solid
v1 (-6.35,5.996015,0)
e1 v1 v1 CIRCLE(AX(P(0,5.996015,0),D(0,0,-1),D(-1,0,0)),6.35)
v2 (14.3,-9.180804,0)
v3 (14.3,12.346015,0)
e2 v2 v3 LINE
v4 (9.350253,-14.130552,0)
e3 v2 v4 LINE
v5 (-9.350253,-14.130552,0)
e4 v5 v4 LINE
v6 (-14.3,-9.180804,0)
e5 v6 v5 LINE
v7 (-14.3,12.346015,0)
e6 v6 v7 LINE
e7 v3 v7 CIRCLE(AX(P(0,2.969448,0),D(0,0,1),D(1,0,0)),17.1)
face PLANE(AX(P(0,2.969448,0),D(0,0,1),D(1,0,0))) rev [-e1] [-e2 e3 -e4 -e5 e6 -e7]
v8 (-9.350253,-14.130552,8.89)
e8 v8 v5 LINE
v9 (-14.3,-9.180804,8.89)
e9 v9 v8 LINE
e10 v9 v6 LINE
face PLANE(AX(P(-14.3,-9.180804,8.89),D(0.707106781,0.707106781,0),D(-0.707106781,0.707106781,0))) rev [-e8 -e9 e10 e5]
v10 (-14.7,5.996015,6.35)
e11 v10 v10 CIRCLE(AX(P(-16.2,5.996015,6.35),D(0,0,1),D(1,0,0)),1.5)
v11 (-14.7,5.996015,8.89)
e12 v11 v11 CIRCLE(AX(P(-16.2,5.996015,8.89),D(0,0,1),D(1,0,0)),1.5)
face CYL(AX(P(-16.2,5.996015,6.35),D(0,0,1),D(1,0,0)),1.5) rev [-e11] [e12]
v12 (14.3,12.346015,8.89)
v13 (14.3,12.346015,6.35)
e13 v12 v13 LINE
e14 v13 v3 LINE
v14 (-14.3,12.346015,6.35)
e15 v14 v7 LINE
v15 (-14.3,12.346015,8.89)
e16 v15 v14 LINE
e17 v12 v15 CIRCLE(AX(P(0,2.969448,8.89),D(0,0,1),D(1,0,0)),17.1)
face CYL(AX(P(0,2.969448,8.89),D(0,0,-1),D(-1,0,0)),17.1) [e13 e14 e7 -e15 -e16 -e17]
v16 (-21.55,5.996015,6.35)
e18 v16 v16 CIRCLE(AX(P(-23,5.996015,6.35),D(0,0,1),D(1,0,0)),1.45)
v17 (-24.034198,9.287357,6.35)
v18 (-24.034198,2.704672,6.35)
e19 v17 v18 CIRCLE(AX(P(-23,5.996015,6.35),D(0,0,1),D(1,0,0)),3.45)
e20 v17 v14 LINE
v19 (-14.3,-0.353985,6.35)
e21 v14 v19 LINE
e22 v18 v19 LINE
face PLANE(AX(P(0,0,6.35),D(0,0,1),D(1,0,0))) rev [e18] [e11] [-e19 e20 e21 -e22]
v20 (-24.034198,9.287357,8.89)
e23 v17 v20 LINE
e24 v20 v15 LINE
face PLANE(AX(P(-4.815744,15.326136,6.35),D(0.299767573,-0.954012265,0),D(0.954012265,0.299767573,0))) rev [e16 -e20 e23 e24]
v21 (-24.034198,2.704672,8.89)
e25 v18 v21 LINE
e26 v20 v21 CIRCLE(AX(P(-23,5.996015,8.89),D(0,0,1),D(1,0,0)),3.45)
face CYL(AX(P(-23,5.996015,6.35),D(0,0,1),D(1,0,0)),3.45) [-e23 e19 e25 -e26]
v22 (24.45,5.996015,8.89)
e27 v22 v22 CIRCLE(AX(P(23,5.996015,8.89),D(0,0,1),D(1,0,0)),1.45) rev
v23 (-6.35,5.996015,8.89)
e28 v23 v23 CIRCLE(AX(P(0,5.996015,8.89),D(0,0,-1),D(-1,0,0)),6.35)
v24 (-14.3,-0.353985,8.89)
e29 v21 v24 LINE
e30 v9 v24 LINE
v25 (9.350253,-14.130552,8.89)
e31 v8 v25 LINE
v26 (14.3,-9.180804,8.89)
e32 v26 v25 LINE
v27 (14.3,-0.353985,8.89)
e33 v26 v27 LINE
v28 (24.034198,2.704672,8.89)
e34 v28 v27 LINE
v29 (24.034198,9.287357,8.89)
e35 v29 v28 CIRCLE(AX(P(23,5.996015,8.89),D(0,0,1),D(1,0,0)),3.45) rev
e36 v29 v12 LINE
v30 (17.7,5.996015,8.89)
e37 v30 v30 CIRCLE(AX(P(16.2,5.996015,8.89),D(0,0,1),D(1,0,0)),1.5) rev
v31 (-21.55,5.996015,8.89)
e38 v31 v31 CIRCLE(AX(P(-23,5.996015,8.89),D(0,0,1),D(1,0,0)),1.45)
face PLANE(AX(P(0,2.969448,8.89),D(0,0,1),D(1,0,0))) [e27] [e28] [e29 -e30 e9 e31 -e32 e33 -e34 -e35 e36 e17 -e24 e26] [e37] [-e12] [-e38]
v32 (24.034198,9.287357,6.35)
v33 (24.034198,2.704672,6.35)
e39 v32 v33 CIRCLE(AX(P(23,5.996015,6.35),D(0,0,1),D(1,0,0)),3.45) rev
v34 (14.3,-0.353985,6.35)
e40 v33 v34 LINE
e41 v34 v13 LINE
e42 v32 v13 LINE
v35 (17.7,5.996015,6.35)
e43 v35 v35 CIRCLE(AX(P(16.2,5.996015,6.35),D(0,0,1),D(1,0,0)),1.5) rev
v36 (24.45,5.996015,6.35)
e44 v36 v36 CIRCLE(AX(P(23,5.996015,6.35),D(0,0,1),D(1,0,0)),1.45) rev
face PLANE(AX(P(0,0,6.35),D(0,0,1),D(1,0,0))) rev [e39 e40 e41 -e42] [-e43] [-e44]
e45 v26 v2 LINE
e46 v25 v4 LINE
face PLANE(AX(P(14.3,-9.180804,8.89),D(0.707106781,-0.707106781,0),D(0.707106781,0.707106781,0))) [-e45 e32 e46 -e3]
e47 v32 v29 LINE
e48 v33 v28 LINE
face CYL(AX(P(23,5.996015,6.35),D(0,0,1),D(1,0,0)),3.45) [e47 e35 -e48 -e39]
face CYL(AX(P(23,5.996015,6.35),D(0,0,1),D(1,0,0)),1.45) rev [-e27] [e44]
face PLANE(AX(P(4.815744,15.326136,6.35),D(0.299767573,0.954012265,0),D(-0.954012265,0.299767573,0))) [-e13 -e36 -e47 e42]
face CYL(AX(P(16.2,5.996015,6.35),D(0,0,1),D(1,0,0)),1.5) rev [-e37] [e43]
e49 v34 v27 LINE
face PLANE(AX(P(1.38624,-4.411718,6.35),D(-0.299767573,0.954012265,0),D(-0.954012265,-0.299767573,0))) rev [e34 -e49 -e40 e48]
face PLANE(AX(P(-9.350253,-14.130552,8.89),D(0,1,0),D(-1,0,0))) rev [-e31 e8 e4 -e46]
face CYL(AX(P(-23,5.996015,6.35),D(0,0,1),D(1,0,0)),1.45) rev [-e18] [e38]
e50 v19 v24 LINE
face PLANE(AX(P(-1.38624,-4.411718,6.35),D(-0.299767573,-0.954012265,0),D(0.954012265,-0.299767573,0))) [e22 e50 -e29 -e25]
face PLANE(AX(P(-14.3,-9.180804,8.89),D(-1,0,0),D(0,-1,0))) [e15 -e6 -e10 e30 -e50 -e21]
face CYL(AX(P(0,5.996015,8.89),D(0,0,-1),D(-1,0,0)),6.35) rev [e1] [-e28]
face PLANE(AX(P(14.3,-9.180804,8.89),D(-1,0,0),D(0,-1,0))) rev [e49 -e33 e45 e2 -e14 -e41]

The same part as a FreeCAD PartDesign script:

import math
import FreeCAD as App
import Part
import Sketcher

V = App.Vector
Q = App.Units.Quantity

doc = App.newDocument("Part")
body = doc.addObject("PartDesign::Body", "Body")

# Sketch on XY plane
sketch1 = body.newObject("Sketcher::SketchObject", "Sketch")
sketch1.AttachmentSupport = (doc.getObject("XY_Plane"), [""])
sketch1.MapMode = "FlatFace"
sketch1.addGeometry(Part.LineSegment(V(-9, -14, 0), V(9, -14, 0)), False)
sketch1.addGeometry(Part.LineSegment(V(9, -14, 0), V(14, -9, 0)), False)
sketch1.addGeometry(Part.LineSegment(V(14, -9, 0), V(14, 12, 0)), False)
sketch1.addGeometry(Part.ArcOfCircle(Part.Circle(V(0, 3, 0), V(0, 0, 1), 17), math.radians(33), math.radians(147)), False)
sketch1.addGeometry(Part.LineSegment(V(-14, 12, 0), V(-14, -9, 0)), False)
sketch1.addGeometry(Part.LineSegment(V(-14, -9, 0), V(-9, -14, 0)), False)
sketch1.addConstraint(Sketcher.Constraint("Coincident", 0, 2, 1, 1))
sketch1.addConstraint(Sketcher.Constraint("Coincident", 1, 2, 2, 1))
sketch1.addConstraint(Sketcher.Constraint("Coincident", 2, 2, 3, 1))
sketch1.addConstraint(Sketcher.Constraint("Coincident", 3, 2, 4, 1))
sketch1.addConstraint(Sketcher.Constraint("Coincident", 4, 2, 5, 1))
sketch1.addConstraint(Sketcher.Constraint("Coincident", 5, 2, 0, 1))
sketch1.addConstraint(Sketcher.Constraint("Horizontal", 0))
sketch1.addConstraint(Sketcher.Constraint("Vertical", 2))
sketch1.addConstraint(Sketcher.Constraint("Vertical", 4))
sketch1.addConstraint(Sketcher.Constraint("Symmetric", 2, 2, 3, 2, -2))
sketch1.addConstraint(Sketcher.Constraint("Perpendicular", 1, 5))
sketch1.addConstraint(Sketcher.Constraint("Horizontal", 1, 2, 4, 2))
sketch1.addConstraint(Sketcher.Constraint("Equal", 1, 5))
sketch1.addConstraint(Sketcher.Constraint("Radius", 3, Q("17.1 mm")))
sketch1.addConstraint(Sketcher.Constraint("Distance", 1, Q("7 mm")))
sketch1.addConstraint(Sketcher.Constraint("DistanceX", -1, 1, 1, 2, Q("14.3 mm")))
sketch1.addConstraint(Sketcher.Constraint("DistanceY", 0, 2, 3, 3, Q("17.1 mm")))
sketch1.addConstraint(Sketcher.Constraint("DistanceY", -1, 1, 3, 3, Q("2.969448 mm")))
pad1 = body.newObject("PartDesign::Pad", "Pad")
pad1.Profile = sketch1
pad1.Length = 8.89

# Sketch on XY plane
sketch2 = body.newObject("Sketcher::SketchObject", "Sketch001")
sketch2.AttachmentSupport = (doc.getObject("XY_Plane"), [""])
sketch2.MapMode = "FlatFace"
sketch2.addGeometry(Part.Circle(V(0, 6, 0), V(0, 0, 1), 6), False)
sketch2.addConstraint(Sketcher.Constraint("PointOnObject", 0, 3, -2))
sketch2.addConstraint(Sketcher.Constraint("Diameter", 0, Q("12.7 mm")))
sketch2.addConstraint(Sketcher.Constraint("DistanceY", -1, 1, 0, 3, Q("5.996015 mm")))
pocket1 = body.newObject("PartDesign::Pocket", "Pocket")
pocket1.Profile = sketch2
pocket1.Type = "ThroughAll"
pocket1.Reversed = True

# Sketch on XY plane
sketch3 = body.newObject("Sketcher::SketchObject", "Sketch002")
sketch3.AttachmentSupport = (doc.getObject("XY_Plane"), [""])
sketch3.MapMode = "FlatFace"
sketch3.AttachmentOffset = App.Placement(V(0, 0, 8.89), App.Rotation())
sketch3.addGeometry(Part.LineSegment(V(-14.3, 12.3, 0), V(-24, 9.3, 0)), False)
sketch3.addGeometry(Part.ArcOfCircle(Part.Circle(V(-23, 6, 0), V(0, 0, 1), 3.5), math.radians(107), math.radians(253)), False)
sketch3.addGeometry(Part.LineSegment(V(-24, 2.7, 0), V(-14.3, -0.4, 0)), False)
sketch3.addGeometry(Part.LineSegment(V(-14.3, -0.4, 0), V(-14.3, 12.3, 0)), False)
sketch3.addGeometry(Part.Circle(V(-23, 6, 0), V(0, 0, 1), 1.4), False)
sketch3.addGeometry(Part.Circle(V(-16.2, 6, 0), V(0, 0, 1), 1.5), False)
sketch3.addGeometry(Part.LineSegment(V(14.3, 12.3, 0), V(14.3, -0.4, 0)), False)
sketch3.addGeometry(Part.LineSegment(V(14.3, -0.4, 0), V(24, 2.7, 0)), False)
sketch3.addGeometry(Part.ArcOfCircle(Part.Circle(V(23, 6, 0), V(0, 0, 1), 3.5), math.radians(-73), math.radians(73)), False)
sketch3.addGeometry(Part.LineSegment(V(24, 9.3, 0), V(14.3, 12.3, 0)), False)
sketch3.addGeometry(Part.Circle(V(16.2, 6, 0), V(0, 0, 1), 1.5), False)
sketch3.addGeometry(Part.Circle(V(23, 6, 0), V(0, 0, 1), 1.4), False)
sketch3.addConstraint(Sketcher.Constraint("Tangent", 0, 2, 1, 1))
sketch3.addConstraint(Sketcher.Constraint("Tangent", 1, 2, 2, 1))
sketch3.addConstraint(Sketcher.Constraint("Coincident", 2, 2, 3, 1))
sketch3.addConstraint(Sketcher.Constraint("Coincident", 3, 2, 0, 1))
sketch3.addConstraint(Sketcher.Constraint("Coincident", 6, 2, 7, 1))
sketch3.addConstraint(Sketcher.Constraint("Tangent", 7, 2, 8, 1))
sketch3.addConstraint(Sketcher.Constraint("Tangent", 8, 2, 9, 1))
sketch3.addConstraint(Sketcher.Constraint("Coincident", 9, 2, 6, 1))
sketch3.addConstraint(Sketcher.Constraint("Vertical", 3))
sketch3.addConstraint(Sketcher.Constraint("Vertical", 6))
sketch3.addConstraint(Sketcher.Constraint("Coincident", 4, 3, 1, 3))
sketch3.addConstraint(Sketcher.Constraint("Coincident", 11, 3, 8, 3))
sketch3.addConstraint(Sketcher.Constraint("Equal", 1, 8))
sketch3.addConstraint(Sketcher.Constraint("Equal", 5, 10))
sketch3.addConstraint(Sketcher.Constraint("Equal", 4, 11))
sketch3.addConstraint(Sketcher.Constraint("Symmetric", 1, 3, 8, 3, -2))
sketch3.addConstraint(Sketcher.Constraint("Symmetric", 5, 3, 10, 3, -2))
sketch3.addConstraint(Sketcher.Constraint("Symmetric", 2, 2, 6, 2, -2))
sketch3.addConstraint(Sketcher.Constraint("Parallel", 0, 7))
sketch3.addConstraint(Sketcher.Constraint("Parallel", 2, 9))
sketch3.addConstraint(Sketcher.Constraint("Horizontal", 4, 3, 5, 3))
sketch3.addConstraint(Sketcher.Constraint("Diameter", 5, Q("3 mm")))
sketch3.addConstraint(Sketcher.Constraint("Diameter", 4, Q("2.9 mm")))
sketch3.addConstraint(Sketcher.Constraint("Radius", 1, Q("3.45 mm")))
sketch3.addConstraint(Sketcher.Constraint("DistanceY", 3, 1, 3, 2, Q("12.7 mm")))
sketch3.addConstraint(Sketcher.Constraint("DistanceX", 1, 3, -1, 1, Q("23 mm")))
sketch3.addConstraint(Sketcher.Constraint("DistanceX", 5, 3, -1, 1, Q("16.2 mm")))
sketch3.addConstraint(Sketcher.Constraint("DistanceX", 2, 2, -1, 1, Q("14.3 mm")))
sketch3.addConstraint(Sketcher.Constraint("DistanceY", -1, 1, 1, 3, Q("5.996015 mm")))
pad2 = body.newObject("PartDesign::Pad", "Pad001")
pad2.Profile = sketch3
pad2.Length = 2.54
pad2.Reversed = True

doc.recompute()
